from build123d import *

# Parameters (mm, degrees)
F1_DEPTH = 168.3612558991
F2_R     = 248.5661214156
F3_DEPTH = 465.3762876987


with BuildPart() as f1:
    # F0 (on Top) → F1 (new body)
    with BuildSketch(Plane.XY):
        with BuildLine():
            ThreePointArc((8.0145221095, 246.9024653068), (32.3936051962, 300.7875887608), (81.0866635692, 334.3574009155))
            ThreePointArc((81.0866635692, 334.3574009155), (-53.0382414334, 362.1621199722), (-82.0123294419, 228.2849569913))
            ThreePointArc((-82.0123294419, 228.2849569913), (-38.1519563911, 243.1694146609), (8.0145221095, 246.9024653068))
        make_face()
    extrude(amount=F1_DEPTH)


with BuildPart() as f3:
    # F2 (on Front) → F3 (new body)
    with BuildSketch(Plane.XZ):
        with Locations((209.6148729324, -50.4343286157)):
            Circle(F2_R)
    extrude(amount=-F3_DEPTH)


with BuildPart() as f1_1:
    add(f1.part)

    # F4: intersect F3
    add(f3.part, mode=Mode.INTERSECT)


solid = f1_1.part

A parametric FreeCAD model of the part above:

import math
import FreeCAD as App
import Part
import Sketcher

V = App.Vector

doc = App.newDocument("Part")
params = doc.addObject("Spreadsheet::Sheet", "Params")
for row, (alias, value) in enumerate([
    ("pad1_length", "168.361256 mm"),
    ("pad2_length", "465.376288 mm"),
], start=1):
    params.set(f"A{row}", alias)
    params.set(f"B{row}", "=" + value)
    params.setAlias(f"B{row}", alias)

body = doc.addObject("PartDesign::Body", "Body")

# Sketch on XY plane
sketch1 = body.newObject("Sketcher::SketchObject", "Sketch")
sketch1.AttachmentSupport = (doc.getObject("XY_Plane"), [""])
sketch1.MapMode = "FlatFace"
sketch1.addGeometry([
    Part.ArcOfCircle(Part.Circle(V(117.113762, 230.000466, 0), V(0, 0, 1), 110.400732), math.radians(109.046187), math.radians(171.193566)),
    Part.ArcOfCircle(Part.Circle(V(0, 280.609518, 0), V(0, 0, 1), 97.282485), math.radians(33.538205), math.radians(212.538221)),
    Part.ArcOfCircle(Part.Circle(V(0, 58.681756, 0), V(0, 0, 1), 188.391263), math.radians(87.561793), math.radians(115.806281)),
], False)
sketch1.addConstraint([
    Sketcher.Constraint("Coincident", 0, 1, 1, 1),
    Sketcher.Constraint("Coincident", 1, 2, 2, 2),
    Sketcher.Constraint("Coincident", 2, 1, 0, 2),
    Sketcher.Constraint("PointOnObject", 1, 3, -2),
    Sketcher.Constraint("PointOnObject", 2, 3, -2),
    Sketcher.Constraint("Radius", 0, 110.400732),
    Sketcher.Constraint("Radius", 1, 97.282485),
    Sketcher.Constraint("Radius", 2, 188.391263),
    Sketcher.Constraint("DistanceY", 0, 3, 2, 1, 16.901999),
    Sketcher.Constraint("DistanceY", -1, 1, 0, 1, 334.357401),
    Sketcher.Constraint("DistanceX", 0, 1, 0, 3, 36.027098),
    Sketcher.Constraint("DistanceY", 2, 3, 1, 2, 169.603201),
])
pad1 = body.newObject("PartDesign::Pad", "Pad")
pad1.Profile = sketch1
pad1.setExpression("Length", "Params.pad1_length")
body2 = doc.addObject("PartDesign::Body", "Body001")

# Sketch on XZ plane
sketch2 = body2.newObject("Sketcher::SketchObject", "Sketch001")
sketch2.AttachmentSupport = (doc.getObject("XZ_Plane001"), [""])
sketch2.MapMode = "FlatFace"
sketch2.addGeometry(Part.Circle(V(209.614873, -50.434329, 0), V(0, 0, 1), 248.566121), False)
sketch2.addConstraint([
    Sketcher.Constraint("Diameter", 0, 497.132243),
    Sketcher.Constraint("DistanceY", 0, 3, -1, 1, 50.434329),
    Sketcher.Constraint("DistanceX", -1, 1, 0, 3, 209.614873),
])
pad2 = body2.newObject("PartDesign::Pad", "Pad001")
pad2.Profile = sketch2
pad2.setExpression("Length", "Params.pad2_length")
pad2.Reversed = True
doc.recompute()

boolean = body.newObject("PartDesign::Boolean", "Boolean")
boolean.Type = "Common"
boolean.addObjects([body2])

doc.recompute()
